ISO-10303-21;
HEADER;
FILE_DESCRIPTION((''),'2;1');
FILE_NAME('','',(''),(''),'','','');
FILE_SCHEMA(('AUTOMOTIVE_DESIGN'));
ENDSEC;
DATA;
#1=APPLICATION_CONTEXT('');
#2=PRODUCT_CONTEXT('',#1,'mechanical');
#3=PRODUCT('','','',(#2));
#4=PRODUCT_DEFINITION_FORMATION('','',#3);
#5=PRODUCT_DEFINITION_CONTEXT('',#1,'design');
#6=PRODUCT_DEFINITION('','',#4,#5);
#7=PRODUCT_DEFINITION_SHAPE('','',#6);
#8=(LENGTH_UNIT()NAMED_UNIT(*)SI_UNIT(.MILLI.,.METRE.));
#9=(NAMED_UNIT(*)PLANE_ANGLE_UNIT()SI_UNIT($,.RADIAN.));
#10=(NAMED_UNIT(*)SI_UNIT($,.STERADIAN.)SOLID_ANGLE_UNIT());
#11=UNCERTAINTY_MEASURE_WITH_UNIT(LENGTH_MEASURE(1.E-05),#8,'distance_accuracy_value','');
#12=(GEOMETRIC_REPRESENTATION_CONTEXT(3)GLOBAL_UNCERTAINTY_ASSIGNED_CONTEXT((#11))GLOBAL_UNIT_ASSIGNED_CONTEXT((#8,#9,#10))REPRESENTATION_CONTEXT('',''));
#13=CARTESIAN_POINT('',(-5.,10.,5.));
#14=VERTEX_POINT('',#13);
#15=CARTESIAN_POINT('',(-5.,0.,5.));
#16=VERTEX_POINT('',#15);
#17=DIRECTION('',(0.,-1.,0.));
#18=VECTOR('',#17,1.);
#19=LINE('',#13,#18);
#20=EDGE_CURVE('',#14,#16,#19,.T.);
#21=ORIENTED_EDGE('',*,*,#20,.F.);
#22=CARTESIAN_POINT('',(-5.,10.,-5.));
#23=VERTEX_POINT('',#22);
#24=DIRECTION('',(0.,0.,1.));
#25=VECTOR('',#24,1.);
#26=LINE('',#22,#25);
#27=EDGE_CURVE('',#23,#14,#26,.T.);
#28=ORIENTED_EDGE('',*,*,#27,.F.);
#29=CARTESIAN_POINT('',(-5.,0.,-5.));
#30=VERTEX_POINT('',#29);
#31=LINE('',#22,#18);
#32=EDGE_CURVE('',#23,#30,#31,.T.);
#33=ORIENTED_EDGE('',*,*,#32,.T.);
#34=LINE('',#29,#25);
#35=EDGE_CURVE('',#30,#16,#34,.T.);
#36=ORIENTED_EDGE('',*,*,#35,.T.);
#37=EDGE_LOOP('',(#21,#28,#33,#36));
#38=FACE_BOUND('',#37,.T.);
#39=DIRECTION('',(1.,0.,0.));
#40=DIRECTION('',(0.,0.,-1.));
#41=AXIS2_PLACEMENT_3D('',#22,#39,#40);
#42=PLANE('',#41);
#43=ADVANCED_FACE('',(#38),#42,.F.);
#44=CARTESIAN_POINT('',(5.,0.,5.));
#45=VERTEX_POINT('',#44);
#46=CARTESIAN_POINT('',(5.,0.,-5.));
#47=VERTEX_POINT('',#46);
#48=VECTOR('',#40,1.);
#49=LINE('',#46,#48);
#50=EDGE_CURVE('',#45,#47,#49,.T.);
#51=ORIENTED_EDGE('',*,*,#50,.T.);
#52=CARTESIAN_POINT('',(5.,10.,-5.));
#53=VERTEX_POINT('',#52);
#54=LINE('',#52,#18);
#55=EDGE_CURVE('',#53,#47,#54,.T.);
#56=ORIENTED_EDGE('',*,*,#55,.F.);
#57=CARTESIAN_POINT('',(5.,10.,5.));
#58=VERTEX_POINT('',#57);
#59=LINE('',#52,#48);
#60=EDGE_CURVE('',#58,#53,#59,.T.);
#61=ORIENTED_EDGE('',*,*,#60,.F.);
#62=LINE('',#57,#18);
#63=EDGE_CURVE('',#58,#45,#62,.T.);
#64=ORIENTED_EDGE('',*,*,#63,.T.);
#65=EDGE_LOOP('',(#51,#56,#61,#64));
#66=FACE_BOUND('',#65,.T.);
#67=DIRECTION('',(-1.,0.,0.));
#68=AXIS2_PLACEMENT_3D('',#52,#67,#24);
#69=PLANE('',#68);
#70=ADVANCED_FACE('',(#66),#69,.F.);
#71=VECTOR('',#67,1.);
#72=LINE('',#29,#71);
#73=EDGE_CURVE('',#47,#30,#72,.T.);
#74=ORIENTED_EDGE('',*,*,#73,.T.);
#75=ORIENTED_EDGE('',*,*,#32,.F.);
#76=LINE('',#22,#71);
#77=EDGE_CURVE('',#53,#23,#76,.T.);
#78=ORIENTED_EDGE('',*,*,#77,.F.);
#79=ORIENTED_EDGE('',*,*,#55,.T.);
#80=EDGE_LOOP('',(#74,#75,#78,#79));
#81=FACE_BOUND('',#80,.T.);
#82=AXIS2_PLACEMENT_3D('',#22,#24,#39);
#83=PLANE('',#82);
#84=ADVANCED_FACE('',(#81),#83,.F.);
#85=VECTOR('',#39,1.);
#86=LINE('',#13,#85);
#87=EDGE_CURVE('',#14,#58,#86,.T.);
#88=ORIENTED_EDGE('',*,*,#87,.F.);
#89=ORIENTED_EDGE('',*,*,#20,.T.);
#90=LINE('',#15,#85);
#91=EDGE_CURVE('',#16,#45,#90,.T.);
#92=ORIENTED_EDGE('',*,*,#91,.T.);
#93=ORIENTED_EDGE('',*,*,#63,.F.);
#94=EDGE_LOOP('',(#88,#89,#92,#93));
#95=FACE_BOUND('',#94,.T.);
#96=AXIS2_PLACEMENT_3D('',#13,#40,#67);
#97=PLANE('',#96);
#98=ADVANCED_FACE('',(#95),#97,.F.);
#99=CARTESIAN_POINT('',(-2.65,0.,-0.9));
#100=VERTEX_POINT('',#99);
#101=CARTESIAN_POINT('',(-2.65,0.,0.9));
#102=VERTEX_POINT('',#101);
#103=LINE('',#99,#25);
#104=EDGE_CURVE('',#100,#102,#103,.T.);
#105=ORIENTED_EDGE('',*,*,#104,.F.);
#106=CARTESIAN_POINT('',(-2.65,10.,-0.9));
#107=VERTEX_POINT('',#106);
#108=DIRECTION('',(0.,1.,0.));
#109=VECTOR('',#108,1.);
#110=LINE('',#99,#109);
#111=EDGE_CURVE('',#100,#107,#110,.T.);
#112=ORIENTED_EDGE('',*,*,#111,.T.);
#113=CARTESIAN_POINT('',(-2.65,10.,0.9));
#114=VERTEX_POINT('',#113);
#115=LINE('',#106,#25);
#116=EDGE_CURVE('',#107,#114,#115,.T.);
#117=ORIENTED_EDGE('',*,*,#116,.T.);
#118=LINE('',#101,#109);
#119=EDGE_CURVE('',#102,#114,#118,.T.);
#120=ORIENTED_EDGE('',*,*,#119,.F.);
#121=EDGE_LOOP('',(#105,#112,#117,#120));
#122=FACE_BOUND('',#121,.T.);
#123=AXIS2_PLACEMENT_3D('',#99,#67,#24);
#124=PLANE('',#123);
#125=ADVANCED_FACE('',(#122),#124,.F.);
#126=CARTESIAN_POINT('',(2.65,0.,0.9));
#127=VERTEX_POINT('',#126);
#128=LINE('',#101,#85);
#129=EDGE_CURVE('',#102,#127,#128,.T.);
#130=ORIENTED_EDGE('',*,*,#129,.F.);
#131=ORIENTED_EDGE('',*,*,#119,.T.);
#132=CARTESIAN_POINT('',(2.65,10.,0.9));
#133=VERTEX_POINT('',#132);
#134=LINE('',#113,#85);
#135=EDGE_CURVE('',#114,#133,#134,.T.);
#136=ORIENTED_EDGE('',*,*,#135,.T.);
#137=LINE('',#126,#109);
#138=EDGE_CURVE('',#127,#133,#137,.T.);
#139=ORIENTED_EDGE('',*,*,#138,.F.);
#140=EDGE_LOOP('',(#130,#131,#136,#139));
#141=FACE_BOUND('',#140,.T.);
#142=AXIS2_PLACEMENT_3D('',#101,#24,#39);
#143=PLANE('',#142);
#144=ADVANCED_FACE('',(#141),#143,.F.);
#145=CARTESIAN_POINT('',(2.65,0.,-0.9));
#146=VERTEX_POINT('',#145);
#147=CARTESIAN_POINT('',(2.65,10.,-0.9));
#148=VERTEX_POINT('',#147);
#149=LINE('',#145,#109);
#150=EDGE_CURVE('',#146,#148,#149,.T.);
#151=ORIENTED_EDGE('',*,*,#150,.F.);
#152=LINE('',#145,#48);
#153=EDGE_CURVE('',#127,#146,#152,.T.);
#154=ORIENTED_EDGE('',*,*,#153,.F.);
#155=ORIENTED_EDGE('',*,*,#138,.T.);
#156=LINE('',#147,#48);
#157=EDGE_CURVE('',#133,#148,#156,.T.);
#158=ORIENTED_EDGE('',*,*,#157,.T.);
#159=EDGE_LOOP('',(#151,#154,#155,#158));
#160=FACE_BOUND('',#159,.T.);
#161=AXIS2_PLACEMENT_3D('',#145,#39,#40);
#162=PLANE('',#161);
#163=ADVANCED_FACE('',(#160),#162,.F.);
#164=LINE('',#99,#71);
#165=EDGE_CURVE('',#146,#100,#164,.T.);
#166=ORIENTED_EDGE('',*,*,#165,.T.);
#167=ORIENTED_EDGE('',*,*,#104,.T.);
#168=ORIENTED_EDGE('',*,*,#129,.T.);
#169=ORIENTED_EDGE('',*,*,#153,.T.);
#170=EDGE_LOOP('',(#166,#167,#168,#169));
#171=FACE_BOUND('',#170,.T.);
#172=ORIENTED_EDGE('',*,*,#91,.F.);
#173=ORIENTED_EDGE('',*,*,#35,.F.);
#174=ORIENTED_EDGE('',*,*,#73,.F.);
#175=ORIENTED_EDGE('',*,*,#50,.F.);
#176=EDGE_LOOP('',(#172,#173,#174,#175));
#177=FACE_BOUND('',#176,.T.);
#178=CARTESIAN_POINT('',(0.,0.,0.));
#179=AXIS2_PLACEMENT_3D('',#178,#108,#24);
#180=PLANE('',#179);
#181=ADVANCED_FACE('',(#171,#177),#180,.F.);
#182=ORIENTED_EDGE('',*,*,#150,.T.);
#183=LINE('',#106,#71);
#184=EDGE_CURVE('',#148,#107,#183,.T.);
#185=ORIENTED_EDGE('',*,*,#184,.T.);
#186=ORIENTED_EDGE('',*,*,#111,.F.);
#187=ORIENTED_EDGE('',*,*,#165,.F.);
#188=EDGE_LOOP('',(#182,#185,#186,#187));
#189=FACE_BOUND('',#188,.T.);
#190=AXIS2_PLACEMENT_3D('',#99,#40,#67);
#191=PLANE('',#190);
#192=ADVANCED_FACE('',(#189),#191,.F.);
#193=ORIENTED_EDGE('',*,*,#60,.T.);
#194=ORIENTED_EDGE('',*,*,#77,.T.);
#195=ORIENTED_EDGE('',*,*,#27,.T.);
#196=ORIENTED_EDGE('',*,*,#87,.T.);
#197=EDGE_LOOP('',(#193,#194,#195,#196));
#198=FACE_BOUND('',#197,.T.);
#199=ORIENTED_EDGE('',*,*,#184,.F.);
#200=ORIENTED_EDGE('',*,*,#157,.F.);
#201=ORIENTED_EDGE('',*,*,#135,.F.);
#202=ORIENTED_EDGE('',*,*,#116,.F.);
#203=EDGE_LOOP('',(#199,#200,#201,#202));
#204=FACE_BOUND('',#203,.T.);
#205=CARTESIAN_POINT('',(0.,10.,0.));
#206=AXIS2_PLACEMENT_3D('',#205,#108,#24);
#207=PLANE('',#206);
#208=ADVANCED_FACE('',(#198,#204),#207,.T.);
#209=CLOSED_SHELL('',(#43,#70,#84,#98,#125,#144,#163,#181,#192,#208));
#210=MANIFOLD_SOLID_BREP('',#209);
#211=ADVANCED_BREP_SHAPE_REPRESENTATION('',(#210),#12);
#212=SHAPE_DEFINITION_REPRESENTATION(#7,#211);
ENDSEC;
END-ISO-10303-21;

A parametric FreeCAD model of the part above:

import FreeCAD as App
import Part
import Sketcher
from FreeCAD import Vector


def add_polygon(sketch, points):
    """Adds a closed chain of lines whose ends are joined by coincident constraints."""
    first, n = sketch.GeometryCount, len(points)
    for a, b in zip(points, points[1:] + points[:1]):
        sketch.addGeometry(Part.LineSegment(App.Vector(*a, 0), App.Vector(*b, 0)), False)
    for i in range(n):
        sketch.addConstraint(Sketcher.Constraint("Coincident", first + i, 2, first + (i + 1) % n, 1))

doc = App.newDocument("Part")
body = doc.addObject("PartDesign::Body", "Body")

sketch1 = body.newObject("Sketcher::SketchObject", "Sketch")
sketch1.AttachmentSupport = (doc.getObject("XZ_Plane"), [""])
sketch1.MapMode = "FlatFace"
add_polygon(sketch1, [(-5, -5), (-5, 5), (5, 5), (5, -5)])
sketch1.addConstraint([
    Sketcher.Constraint("Vertical", 0),
    Sketcher.Constraint("Horizontal", 1),
    Sketcher.Constraint("Vertical", 2),
    Sketcher.Constraint("Horizontal", 3),
    Sketcher.Constraint("Symmetric", 0, 2, 2, 2, -1, 1),
    Sketcher.Constraint("Equal", 3, 0),
    Sketcher.Constraint("DistanceX", 1, 1, 1, 2, 10.0),
])
pad1 = body.newObject("PartDesign::Pad", "Pad")
pad1.Profile = sketch1
pad1.Length = 10
pad1.Reversed = True

sketch2 = body.newObject("Sketcher::SketchObject", "Sketch001")
sketch2.AttachmentSupport = (doc.getObject("XZ_Plane"), [""])
sketch2.MapMode = "FlatFace"
sketch2.AttachmentOffset = App.Placement(Vector(0, 0, -10), App.Rotation())
add_polygon(sketch2, [(-2.65, -0.9), (-2.65, 0.9), (2.65, 0.9), (2.65, -0.9)])
sketch2.addConstraint([
    Sketcher.Constraint("Vertical", 0),
    Sketcher.Constraint("Horizontal", 1),
    Sketcher.Constraint("Vertical", 2),
    Sketcher.Constraint("Horizontal", 3),
    Sketcher.Constraint("Symmetric", 0, 2, 2, 2, -1, 1),
    Sketcher.Constraint("DistanceX", 1, 1, 1, 2, 5.3),
    Sketcher.Constraint("DistanceY", 0, 1, 0, 2, 1.8),
])
pocket1 = body.newObject("PartDesign::Pocket", "Pocket")
pocket1.Profile = sketch2
pocket1.Type = "ThroughAll"
pocket1.Reversed = True

doc.recompute()
